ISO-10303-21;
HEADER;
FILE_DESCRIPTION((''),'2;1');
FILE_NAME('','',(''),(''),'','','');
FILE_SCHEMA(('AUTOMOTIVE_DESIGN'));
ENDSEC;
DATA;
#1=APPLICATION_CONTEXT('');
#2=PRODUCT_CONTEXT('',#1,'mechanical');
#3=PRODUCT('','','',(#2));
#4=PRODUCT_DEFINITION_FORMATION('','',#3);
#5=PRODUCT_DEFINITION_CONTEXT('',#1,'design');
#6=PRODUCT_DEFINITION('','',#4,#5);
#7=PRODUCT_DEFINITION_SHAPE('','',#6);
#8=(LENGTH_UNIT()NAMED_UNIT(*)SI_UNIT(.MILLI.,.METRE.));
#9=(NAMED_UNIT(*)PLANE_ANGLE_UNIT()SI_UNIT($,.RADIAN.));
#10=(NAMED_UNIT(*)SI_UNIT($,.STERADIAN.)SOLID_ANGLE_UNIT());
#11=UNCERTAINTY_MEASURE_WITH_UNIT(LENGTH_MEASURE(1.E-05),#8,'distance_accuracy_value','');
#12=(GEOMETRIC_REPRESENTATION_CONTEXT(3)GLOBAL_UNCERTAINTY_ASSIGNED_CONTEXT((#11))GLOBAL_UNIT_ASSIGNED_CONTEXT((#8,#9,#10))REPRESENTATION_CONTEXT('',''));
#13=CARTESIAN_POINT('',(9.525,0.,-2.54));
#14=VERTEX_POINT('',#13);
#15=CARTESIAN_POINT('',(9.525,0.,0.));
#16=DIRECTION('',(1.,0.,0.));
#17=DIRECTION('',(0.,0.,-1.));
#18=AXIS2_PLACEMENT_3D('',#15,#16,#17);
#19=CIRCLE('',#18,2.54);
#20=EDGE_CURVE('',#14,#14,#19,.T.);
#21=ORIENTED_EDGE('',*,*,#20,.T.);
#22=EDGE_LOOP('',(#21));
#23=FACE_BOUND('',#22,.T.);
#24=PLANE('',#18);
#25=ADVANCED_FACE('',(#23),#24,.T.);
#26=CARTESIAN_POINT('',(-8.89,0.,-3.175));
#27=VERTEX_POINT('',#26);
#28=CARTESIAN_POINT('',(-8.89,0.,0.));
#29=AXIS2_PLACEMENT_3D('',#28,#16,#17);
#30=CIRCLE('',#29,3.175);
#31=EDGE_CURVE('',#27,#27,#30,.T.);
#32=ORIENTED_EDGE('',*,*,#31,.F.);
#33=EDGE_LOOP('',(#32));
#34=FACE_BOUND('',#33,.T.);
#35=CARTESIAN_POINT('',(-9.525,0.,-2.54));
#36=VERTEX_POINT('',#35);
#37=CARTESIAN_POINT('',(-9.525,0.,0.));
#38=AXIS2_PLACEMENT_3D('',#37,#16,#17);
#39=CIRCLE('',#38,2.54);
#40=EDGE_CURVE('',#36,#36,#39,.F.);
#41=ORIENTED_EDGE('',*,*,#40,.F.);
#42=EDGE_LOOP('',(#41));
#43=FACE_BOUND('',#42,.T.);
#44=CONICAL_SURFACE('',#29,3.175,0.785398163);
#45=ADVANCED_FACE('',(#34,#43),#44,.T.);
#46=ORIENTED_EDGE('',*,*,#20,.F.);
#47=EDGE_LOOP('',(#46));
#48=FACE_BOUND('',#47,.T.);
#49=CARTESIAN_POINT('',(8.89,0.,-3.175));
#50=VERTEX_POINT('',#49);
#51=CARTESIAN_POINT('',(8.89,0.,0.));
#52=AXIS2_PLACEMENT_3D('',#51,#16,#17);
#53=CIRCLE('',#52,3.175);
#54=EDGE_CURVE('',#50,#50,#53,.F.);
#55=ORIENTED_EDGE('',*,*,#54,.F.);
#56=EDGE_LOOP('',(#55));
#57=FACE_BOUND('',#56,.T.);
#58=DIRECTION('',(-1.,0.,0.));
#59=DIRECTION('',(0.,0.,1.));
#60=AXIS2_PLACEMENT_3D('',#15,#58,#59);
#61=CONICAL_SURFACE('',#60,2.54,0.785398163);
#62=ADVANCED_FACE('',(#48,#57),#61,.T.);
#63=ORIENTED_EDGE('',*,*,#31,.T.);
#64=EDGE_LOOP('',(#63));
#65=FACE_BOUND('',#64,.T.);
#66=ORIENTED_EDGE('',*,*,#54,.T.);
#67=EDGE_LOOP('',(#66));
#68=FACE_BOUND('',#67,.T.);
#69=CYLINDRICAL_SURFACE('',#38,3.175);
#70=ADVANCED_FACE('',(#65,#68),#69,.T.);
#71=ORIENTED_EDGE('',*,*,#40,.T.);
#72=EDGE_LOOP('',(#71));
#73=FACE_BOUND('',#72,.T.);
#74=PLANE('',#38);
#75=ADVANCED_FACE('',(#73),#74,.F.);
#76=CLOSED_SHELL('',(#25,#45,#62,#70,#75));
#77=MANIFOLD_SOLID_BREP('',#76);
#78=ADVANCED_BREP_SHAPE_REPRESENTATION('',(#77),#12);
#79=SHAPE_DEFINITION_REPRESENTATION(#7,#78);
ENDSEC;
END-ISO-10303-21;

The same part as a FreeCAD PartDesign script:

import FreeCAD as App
import Part
import Sketcher
from FreeCAD import Vector
Q = App.Units.Quantity


def edges_at(feature, points):
    """Names of the edges that pass closest to the given points."""
    edges = feature.Shape.Edges
    near = lambda p: min(range(len(edges)), key=lambda i: edges[i].distToShape(Part.Vertex(*p))[0])
    return sorted({f"Edge{near(p) + 1}" for p in points})

doc = App.newDocument("Part")
body = doc.addObject("PartDesign::Body", "Body")

sketch1 = body.newObject("Sketcher::SketchObject", "Sketch")
sketch1.AttachmentSupport = (doc.getObject("YZ_Plane"), [""])
sketch1.MapMode = "FlatFace"
sketch1.addGeometry(Part.Circle(Vector(0, 0, 0), Vector(0, 0, 1), 3.2), False)
sketch1.addConstraint([
    Sketcher.Constraint("Coincident", 0, 3, -1, 1),
    Sketcher.Constraint("Diameter", 0, Q("0.25 in")),
])
pad1 = body.newObject("PartDesign::Pad", "Pad")
pad1.Profile = sketch1
pad1.Type = "TwoLengths"
pad1.Length = Q("0.375 in")
pad1.Length2 = Q("0.375 in")
doc.recompute()

chamfer = body.newObject("PartDesign::Chamfer", "Chamfer")
chamfer.Base = (pad1, edges_at(pad1, [(-9.525, 0, 3.175), (9.525, 0, 3.175)]))
chamfer.Size = Q("0.025 in")

doc.recompute()
